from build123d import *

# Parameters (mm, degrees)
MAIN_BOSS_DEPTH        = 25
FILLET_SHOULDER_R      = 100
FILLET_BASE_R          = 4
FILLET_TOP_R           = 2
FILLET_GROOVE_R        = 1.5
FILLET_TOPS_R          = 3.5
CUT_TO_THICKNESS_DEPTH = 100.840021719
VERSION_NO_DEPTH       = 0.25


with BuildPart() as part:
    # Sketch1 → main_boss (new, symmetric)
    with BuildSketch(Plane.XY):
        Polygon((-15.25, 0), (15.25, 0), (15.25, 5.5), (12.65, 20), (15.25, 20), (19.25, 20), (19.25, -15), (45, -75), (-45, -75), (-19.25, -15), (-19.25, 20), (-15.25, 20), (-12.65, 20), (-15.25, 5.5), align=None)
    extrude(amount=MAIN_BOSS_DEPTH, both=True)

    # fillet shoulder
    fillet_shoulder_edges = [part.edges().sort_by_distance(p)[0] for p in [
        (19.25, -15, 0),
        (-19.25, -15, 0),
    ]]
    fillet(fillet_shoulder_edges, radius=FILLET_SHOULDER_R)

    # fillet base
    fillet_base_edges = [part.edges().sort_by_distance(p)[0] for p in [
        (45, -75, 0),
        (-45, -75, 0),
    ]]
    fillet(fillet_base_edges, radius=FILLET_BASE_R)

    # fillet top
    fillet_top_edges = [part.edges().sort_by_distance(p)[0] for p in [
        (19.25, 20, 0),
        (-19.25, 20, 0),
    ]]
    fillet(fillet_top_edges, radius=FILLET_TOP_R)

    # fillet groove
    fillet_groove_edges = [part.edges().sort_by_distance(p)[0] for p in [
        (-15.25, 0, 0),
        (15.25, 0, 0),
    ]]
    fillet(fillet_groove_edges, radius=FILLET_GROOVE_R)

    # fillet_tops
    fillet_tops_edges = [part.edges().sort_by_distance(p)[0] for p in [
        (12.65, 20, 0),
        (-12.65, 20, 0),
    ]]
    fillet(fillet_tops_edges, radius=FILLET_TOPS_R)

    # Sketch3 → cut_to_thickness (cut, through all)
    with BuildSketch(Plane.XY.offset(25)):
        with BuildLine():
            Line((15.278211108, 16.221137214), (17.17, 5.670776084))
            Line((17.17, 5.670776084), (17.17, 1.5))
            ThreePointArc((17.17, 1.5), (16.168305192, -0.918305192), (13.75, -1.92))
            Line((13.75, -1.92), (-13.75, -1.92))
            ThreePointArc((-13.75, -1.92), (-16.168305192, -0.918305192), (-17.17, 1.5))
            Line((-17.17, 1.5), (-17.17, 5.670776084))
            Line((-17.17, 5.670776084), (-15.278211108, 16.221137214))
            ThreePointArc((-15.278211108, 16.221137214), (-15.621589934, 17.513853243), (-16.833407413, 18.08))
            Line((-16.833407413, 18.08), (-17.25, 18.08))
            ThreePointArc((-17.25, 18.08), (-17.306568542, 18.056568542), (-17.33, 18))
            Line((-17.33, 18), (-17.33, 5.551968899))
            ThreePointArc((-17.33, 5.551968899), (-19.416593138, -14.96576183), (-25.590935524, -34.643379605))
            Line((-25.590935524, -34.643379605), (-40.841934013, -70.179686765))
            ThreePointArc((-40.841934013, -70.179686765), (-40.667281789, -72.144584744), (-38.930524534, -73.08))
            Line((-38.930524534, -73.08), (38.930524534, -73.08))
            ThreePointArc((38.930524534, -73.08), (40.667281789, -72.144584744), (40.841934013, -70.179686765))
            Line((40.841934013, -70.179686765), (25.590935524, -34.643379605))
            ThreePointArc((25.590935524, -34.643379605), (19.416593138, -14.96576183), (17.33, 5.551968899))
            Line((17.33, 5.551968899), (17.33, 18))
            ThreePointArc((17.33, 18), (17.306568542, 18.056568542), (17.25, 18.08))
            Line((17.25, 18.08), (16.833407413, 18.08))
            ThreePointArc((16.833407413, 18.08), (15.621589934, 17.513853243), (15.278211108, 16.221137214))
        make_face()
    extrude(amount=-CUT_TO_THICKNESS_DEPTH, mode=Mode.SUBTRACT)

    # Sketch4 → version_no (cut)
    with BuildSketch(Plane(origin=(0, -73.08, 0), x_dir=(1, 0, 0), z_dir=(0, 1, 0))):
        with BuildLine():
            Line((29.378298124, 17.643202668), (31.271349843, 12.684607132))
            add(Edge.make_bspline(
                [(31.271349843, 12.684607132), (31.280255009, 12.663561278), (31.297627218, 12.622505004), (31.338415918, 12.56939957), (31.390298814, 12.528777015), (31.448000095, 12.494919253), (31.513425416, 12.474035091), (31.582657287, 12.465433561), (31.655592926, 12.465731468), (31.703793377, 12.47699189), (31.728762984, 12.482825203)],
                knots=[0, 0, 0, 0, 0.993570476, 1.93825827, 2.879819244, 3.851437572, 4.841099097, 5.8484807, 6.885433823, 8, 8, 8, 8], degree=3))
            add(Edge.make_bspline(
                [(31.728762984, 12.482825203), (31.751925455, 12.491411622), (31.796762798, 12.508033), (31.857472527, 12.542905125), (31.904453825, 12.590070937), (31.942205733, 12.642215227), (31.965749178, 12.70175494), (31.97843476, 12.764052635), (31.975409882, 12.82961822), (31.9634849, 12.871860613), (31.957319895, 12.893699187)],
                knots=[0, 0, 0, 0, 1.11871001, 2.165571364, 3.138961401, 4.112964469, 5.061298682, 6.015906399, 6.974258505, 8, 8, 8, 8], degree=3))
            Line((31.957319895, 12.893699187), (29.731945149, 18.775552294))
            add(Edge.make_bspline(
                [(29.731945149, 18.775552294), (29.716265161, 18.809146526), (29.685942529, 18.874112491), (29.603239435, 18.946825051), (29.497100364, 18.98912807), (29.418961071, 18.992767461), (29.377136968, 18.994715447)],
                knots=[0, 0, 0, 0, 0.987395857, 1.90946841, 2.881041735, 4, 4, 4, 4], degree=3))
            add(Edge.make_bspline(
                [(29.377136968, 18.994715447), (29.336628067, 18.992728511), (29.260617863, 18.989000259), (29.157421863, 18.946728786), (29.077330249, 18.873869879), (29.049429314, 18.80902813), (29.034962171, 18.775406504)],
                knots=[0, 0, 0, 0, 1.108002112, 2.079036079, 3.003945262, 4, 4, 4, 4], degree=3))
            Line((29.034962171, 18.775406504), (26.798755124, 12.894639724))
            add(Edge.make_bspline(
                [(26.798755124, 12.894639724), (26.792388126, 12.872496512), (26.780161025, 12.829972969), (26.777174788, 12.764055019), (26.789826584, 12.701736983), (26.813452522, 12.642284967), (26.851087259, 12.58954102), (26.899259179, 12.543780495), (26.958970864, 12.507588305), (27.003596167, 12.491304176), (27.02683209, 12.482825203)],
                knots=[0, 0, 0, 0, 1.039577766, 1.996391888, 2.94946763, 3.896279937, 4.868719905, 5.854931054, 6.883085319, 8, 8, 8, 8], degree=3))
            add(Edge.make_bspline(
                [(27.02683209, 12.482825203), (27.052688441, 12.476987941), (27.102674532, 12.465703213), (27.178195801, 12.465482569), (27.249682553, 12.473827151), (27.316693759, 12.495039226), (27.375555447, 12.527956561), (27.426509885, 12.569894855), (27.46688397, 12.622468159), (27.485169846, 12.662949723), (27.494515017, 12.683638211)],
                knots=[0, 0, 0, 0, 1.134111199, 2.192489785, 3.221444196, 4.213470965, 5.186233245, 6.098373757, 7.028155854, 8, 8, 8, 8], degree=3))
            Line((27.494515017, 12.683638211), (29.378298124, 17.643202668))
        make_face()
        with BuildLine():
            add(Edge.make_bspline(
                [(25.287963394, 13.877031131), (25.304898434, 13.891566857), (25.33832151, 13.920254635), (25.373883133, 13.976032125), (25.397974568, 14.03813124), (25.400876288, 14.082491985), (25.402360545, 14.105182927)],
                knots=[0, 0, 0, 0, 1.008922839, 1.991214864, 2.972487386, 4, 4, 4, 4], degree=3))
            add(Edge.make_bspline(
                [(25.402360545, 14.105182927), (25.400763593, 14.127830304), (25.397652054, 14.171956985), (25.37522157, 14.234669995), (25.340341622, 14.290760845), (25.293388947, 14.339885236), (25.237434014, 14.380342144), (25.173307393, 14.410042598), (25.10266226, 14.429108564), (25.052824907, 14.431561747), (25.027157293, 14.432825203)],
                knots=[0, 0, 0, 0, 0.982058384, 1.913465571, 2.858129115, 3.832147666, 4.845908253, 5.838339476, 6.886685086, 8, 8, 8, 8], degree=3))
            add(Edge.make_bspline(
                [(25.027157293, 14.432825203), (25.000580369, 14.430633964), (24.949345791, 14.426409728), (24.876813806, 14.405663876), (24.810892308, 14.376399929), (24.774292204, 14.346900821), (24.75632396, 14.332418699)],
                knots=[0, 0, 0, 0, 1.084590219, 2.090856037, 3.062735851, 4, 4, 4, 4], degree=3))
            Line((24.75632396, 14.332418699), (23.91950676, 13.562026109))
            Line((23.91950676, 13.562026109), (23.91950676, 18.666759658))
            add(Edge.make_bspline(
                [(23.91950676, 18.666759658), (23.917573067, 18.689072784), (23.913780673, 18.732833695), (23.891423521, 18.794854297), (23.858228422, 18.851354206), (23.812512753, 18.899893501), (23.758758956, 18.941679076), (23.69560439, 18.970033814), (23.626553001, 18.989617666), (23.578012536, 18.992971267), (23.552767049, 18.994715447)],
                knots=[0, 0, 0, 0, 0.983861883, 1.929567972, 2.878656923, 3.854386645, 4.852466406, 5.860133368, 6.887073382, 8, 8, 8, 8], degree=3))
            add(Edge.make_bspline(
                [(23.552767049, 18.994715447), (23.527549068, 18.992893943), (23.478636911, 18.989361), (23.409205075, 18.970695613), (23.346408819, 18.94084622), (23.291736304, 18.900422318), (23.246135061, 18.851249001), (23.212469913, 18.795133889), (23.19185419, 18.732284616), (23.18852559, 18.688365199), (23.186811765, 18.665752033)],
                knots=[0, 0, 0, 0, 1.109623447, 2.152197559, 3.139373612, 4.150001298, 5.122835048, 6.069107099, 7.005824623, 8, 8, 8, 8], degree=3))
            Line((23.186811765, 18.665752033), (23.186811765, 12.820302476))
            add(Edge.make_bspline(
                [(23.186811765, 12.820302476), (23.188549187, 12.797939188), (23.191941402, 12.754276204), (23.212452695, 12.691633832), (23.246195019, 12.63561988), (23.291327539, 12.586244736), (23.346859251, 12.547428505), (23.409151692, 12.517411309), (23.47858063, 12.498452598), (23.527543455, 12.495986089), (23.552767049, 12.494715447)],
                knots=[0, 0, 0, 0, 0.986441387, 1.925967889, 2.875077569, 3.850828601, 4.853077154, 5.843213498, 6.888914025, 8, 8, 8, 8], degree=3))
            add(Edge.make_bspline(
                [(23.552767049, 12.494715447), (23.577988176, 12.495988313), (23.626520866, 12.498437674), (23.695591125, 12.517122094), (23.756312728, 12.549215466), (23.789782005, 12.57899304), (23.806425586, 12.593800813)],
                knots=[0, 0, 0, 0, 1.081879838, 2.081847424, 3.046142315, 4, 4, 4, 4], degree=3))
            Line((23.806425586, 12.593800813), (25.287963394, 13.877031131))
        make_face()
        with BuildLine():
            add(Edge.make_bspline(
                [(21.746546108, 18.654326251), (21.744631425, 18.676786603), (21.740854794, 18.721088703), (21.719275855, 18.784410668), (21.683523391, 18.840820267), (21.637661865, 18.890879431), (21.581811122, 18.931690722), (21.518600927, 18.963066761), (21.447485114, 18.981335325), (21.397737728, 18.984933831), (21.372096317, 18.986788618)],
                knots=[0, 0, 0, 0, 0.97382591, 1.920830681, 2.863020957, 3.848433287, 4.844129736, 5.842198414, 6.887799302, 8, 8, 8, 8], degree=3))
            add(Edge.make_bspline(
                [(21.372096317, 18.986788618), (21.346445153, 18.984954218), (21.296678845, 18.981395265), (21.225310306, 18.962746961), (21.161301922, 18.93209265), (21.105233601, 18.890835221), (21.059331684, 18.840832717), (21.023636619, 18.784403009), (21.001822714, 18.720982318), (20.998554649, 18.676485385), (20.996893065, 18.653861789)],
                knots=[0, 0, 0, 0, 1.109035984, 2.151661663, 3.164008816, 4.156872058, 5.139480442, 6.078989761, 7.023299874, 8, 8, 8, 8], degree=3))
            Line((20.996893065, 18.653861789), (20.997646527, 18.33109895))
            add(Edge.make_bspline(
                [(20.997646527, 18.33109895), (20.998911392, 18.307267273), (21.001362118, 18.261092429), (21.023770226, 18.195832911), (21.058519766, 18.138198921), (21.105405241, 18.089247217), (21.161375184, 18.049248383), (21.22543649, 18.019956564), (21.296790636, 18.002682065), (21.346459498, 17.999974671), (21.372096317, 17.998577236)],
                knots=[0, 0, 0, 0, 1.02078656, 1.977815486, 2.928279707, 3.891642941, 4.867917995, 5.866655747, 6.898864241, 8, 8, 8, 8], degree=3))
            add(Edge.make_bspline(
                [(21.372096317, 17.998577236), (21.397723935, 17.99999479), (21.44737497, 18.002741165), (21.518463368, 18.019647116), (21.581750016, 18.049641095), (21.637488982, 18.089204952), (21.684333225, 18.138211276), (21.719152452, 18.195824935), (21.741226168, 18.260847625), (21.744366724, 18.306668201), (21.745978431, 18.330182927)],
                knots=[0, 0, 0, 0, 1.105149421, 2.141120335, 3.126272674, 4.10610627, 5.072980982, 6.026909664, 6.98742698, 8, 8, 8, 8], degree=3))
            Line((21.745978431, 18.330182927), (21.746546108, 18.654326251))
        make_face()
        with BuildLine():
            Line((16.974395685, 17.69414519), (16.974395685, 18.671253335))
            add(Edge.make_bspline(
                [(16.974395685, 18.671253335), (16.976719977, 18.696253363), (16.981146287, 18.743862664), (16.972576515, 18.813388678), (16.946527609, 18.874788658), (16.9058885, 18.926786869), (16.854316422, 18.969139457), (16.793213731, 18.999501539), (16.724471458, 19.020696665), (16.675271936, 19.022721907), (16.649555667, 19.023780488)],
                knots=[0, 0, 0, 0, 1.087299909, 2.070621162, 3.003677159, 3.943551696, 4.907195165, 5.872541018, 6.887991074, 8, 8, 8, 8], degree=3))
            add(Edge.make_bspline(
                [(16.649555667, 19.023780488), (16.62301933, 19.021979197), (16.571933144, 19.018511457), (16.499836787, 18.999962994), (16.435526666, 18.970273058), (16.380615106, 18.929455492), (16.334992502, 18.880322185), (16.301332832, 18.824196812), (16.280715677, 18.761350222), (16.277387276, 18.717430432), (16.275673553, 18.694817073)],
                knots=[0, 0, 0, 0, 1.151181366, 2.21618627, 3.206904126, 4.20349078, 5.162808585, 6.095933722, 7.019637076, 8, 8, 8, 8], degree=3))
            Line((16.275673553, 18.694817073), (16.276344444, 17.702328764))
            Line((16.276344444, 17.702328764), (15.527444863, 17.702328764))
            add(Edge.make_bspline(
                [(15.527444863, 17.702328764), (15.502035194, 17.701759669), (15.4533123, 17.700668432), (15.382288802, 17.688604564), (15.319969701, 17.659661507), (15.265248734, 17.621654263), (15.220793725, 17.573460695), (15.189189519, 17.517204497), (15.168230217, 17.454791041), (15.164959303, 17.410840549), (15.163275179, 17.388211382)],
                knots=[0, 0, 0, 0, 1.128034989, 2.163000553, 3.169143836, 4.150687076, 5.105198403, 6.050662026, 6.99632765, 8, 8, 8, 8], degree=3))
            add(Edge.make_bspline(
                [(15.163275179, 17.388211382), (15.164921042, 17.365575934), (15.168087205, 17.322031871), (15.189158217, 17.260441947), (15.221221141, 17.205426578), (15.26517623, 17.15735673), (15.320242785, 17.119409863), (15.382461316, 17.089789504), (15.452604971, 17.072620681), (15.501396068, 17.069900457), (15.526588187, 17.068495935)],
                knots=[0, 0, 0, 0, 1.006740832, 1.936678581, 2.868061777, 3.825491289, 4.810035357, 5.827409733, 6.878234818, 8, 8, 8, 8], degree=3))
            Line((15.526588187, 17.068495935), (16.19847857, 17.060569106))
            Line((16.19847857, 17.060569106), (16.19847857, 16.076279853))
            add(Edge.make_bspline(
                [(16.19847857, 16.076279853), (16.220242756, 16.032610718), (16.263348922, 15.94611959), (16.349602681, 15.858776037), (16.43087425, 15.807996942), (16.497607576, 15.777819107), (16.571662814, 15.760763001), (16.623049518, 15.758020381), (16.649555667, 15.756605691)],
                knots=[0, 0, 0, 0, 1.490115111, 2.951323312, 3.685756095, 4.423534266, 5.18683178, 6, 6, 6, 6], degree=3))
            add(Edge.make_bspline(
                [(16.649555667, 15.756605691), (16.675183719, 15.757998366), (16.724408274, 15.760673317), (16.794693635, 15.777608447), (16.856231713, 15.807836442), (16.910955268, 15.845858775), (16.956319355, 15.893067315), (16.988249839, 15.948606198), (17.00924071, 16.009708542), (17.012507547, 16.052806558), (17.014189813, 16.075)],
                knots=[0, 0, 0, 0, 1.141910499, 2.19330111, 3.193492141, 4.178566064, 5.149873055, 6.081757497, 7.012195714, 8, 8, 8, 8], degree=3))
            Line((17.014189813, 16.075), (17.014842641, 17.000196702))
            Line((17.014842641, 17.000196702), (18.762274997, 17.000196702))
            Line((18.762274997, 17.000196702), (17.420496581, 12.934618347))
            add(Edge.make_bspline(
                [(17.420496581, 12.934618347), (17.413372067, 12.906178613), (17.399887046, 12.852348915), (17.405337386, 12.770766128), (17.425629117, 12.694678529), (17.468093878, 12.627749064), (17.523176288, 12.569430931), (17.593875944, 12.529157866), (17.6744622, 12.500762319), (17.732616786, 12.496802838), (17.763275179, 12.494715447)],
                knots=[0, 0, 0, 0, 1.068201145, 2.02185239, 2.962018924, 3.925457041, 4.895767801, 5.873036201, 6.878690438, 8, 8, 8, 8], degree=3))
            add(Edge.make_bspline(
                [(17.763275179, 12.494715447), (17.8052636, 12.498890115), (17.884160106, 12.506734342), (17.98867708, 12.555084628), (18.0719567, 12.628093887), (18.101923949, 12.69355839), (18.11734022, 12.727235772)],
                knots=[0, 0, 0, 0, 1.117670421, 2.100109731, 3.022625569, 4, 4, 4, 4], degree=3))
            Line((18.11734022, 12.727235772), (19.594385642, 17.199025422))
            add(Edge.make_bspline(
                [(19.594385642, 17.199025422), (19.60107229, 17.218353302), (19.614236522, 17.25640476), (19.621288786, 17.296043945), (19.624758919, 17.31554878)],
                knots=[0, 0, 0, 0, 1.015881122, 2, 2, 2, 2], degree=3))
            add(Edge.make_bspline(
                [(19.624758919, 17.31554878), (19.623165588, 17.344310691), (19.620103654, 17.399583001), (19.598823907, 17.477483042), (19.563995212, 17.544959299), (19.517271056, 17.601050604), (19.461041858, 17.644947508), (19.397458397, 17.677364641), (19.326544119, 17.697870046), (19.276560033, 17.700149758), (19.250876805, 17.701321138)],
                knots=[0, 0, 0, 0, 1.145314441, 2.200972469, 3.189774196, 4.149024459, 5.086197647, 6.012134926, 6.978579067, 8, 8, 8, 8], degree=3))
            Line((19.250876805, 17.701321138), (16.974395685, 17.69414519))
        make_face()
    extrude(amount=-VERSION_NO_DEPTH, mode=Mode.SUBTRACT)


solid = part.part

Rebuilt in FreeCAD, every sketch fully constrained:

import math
import FreeCAD as App
import Part
import Sketcher

V = App.Vector


def edges_at(feature, points):
    """Names of the edges that pass closest to the given points."""
    edges = feature.Shape.Edges
    near = lambda p: min(range(len(edges)), key=lambda i: edges[i].distToShape(Part.Vertex(*p))[0])
    return sorted({f"Edge{near(p) + 1}" for p in points})


def add_polygon(sketch, points):
    """Adds a closed chain of lines whose ends are joined by coincident constraints."""
    first, n = sketch.GeometryCount, len(points)
    for a, b in zip(points, points[1:] + points[:1]):
        sketch.addGeometry(Part.LineSegment(App.Vector(*a, 0), App.Vector(*b, 0)), False)
    for i in range(n):
        sketch.addConstraint(Sketcher.Constraint("Coincident", first + i, 2, first + (i + 1) % n, 1))

doc = App.newDocument("Part")
body = doc.addObject("PartDesign::Body", "Body")

# Sketch on XY plane
sketch1 = doc.addObject("Sketcher::SketchObject", "Sketch")
body.addObject(sketch1)
sketch1.AttachmentSupport = (doc.XY_Plane, [""])
sketch1.MapMode = "FlatFace"
add_polygon(sketch1, [(15, 0), (-15, 0), (-15, 6), (-13, 20), (-19, 20), (-19, -15), (-45, -75), (45, -75), (19, -15), (19, 20), (13, 20), (15, 6)])  # lines 0-11
sketch1.addConstraint(Sketcher.Constraint("Horizontal", 0))
sketch1.addConstraint(Sketcher.Constraint("Vertical", 1))
sketch1.addConstraint(Sketcher.Constraint("Horizontal", 3))
sketch1.addConstraint(Sketcher.Constraint("Vertical", 4))
sketch1.addConstraint(Sketcher.Constraint("Horizontal", 6))
sketch1.addConstraint(Sketcher.Constraint("Vertical", 8))
sketch1.addConstraint(Sketcher.Constraint("Horizontal", 9))
sketch1.addConstraint(Sketcher.Constraint("Vertical", 11))
sketch1.addConstraint(Sketcher.Constraint("Symmetric", 0, 2, 11, 2, -1, 1))
sketch1.addConstraint(Sketcher.Constraint("Symmetric", 4, 2, 7, 2, -2))
sketch1.addConstraint(Sketcher.Constraint("Symmetric", 2, 2, 9, 2, -2))
sketch1.addConstraint(Sketcher.Constraint("Horizontal", 1, 2, 10, 2))
sketch1.addConstraint(Sketcher.Constraint("Equal", 5, 7))
sketch1.addConstraint(Sketcher.Constraint("DistanceX", 6, 1, 6, 2, 90.0))
sketch1.addConstraint(Sketcher.Constraint("DistanceY", 4, 2, 4, 1, 35.0))
sketch1.addConstraint(Sketcher.Constraint("DistanceX", 0, 2, 0, 1, 30.5))
sketch1.addConstraint(Sketcher.Constraint("DistanceX", 3, 2, 3, 1, 6.6))
sketch1.addConstraint(Sketcher.Constraint("DistanceY", 1, 1, 1, 2, 5.5))
sketch1.addConstraint(Sketcher.Constraint("DistanceY", -1, 1, 2, 2, 20.0))
sketch1.addConstraint(Sketcher.Constraint("DistanceY", 5, 2, -1, 1, 75.0))
sketch1.addConstraint(Sketcher.Constraint("DistanceX", 3, 2, 1, 2, 4.0))
pad1 = doc.addObject("PartDesign::Pad", "Pad")
body.addObject(pad1)
pad1.Profile = sketch1
pad1.Length = 50
pad1.Midplane = True
doc.recompute()

fillet = doc.addObject("PartDesign::Fillet", "Fillet")
body.addObject(fillet)
fillet.Base = (pad1, edges_at(pad1, [(19.25, -15, 0), (-19.25, -15, 0)]))
fillet.Radius = 100
doc.recompute()

fillet2 = doc.addObject("PartDesign::Fillet", "Fillet001")
body.addObject(fillet2)
fillet2.Base = (fillet, edges_at(fillet, [(45, -75, 0), (-45, -75, 0)]))
fillet2.Radius = 4
doc.recompute()

fillet3 = doc.addObject("PartDesign::Fillet", "Fillet002")
body.addObject(fillet3)
fillet3.Base = (fillet2, edges_at(fillet2, [(19.25, 20, 0), (-19.25, 20, 0)]))
fillet3.Radius = 2
doc.recompute()

fillet4 = doc.addObject("PartDesign::Fillet", "Fillet003")
body.addObject(fillet4)
fillet4.Base = (fillet3, edges_at(fillet3, [(-15.25, 0, 0), (15.25, 0, 0)]))
fillet4.Radius = 1.5
doc.recompute()

fillet5 = doc.addObject("PartDesign::Fillet", "Fillet004")
body.addObject(fillet5)
fillet5.Base = (fillet4, edges_at(fillet4, [(12.65, 20, 0), (-12.65, 20, 0)]))
fillet5.Radius = 3.5

# Sketch on XY plane
sketch2 = doc.addObject("Sketcher::SketchObject", "Sketch001")
body.addObject(sketch2)
sketch2.AttachmentSupport = (doc.XY_Plane, [""])
sketch2.MapMode = "FlatFace"
sketch2.AttachmentOffset = App.Placement(V(0, 0, 25), App.Rotation())
sketch2.addGeometry(Part.LineSegment(V(15.28, 16.22, 0), V(17.17, 5.67, 0)), False)
sketch2.addGeometry(Part.LineSegment(V(17.17, 5.67, 0), V(17.17, 1.5, 0)), False)
sketch2.addGeometry(Part.ArcOfCircle(Part.Circle(V(13.75, 1.5, 0), V(0, 0, 1), 3.42), math.radians(-90), math.radians(0)), False)
sketch2.addGeometry(Part.LineSegment(V(13.75, -1.92, 0), V(-13.75, -1.92, 0)), False)
sketch2.addGeometry(Part.ArcOfCircle(Part.Circle(V(-13.75, 1.5, 0), V(0, 0, 1), 3.42), math.radians(180), math.radians(270)), False)
sketch2.addGeometry(Part.LineSegment(V(-17.17, 1.5, 0), V(-17.17, 5.67, 0)), False)
sketch2.addGeometry(Part.LineSegment(V(-17.17, 5.67, 0), V(-15.28, 16.22, 0)), False)
sketch2.addGeometry(Part.ArcOfCircle(Part.Circle(V(-16.83, 16.5, 0), V(0, 0, 1), 1.58), math.radians(-10), math.radians(90)), False)
sketch2.addGeometry(Part.LineSegment(V(-16.83, 18.08, 0), V(-17.25, 18.08, 0)), False)
sketch2.addGeometry(Part.ArcOfCircle(Part.Circle(V(-17.25, 18, 0), V(0, 0, 1), 0.08), math.radians(90), math.radians(180)), False)
sketch2.addGeometry(Part.LineSegment(V(-17.33, 18, 0), V(-17.33, 5.55, 0)), False)
sketch2.addGeometry(Part.ArcOfCircle(Part.Circle(V(-119.25, 5.55, 0), V(0, 0, 1), 101.92), math.radians(-23), math.radians(0)), False)
sketch2.addGeometry(Part.LineSegment(V(-25.59, -34.64, 0), V(-40.84, -70.18, 0)), False)
sketch2.addGeometry(Part.ArcOfCircle(Part.Circle(V(-38.93, -71, 0), V(0, 0, 1), 2.08), math.radians(157), math.radians(270)), False)
sketch2.addGeometry(Part.LineSegment(V(-38.93, -73.08, 0), V(38.93, -73.08, 0)), False)
sketch2.addGeometry(Part.ArcOfCircle(Part.Circle(V(38.93, -71, 0), V(0, 0, 1), 2.08), math.radians(-90), math.radians(23)), False)
sketch2.addGeometry(Part.LineSegment(V(40.84, -70.18, 0), V(25.59, -34.64, 0)), False)
sketch2.addGeometry(Part.ArcOfCircle(Part.Circle(V(119.25, 5.55, 0), V(0, 0, 1), 101.92), math.radians(-180), math.radians(-157)), False)
sketch2.addGeometry(Part.LineSegment(V(17.33, 5.55, 0), V(17.33, 18, 0)), False)
sketch2.addGeometry(Part.ArcOfCircle(Part.Circle(V(17.25, 18, 0), V(0, 0, 1), 0.08), math.radians(0), math.radians(90)), False)
sketch2.addGeometry(Part.LineSegment(V(17.25, 18.08, 0), V(16.83, 18.08, 0)), False)
sketch2.addGeometry(Part.ArcOfCircle(Part.Circle(V(16.83, 16.5, 0), V(0, 0, 1), 1.58), math.radians(90), math.radians(190)), False)
sketch2.addConstraint(Sketcher.Constraint("Coincident", 0, 2, 1, 1))
sketch2.addConstraint(Sketcher.Constraint("Tangent", 1, 2, 2, 2))
sketch2.addConstraint(Sketcher.Constraint("Tangent", 2, 1, 3, 1))
sketch2.addConstraint(Sketcher.Constraint("Tangent", 3, 2, 4, 2))
sketch2.addConstraint(Sketcher.Constraint("Tangent", 4, 1, 5, 1))
sketch2.addConstraint(Sketcher.Constraint("Coincident", 5, 2, 6, 1))
sketch2.addConstraint(Sketcher.Constraint("Tangent", 6, 2, 7, 1))
sketch2.addConstraint(Sketcher.Constraint("Tangent", 7, 2, 8, 1))
sketch2.addConstraint(Sketcher.Constraint("Tangent", 8, 2, 9, 1))
sketch2.addConstraint(Sketcher.Constraint("Tangent", 9, 2, 10, 1))
sketch2.addConstraint(Sketcher.Constraint("Tangent", 10, 2, 11, 2))
sketch2.addConstraint(Sketcher.Constraint("Tangent", 11, 1, 12, 1))
sketch2.addConstraint(Sketcher.Constraint("Tangent", 12, 2, 13, 1))
sketch2.addConstraint(Sketcher.Constraint("Tangent", 13, 2, 14, 1))
sketch2.addConstraint(Sketcher.Constraint("Tangent", 14, 2, 15, 1))
sketch2.addConstraint(Sketcher.Constraint("Tangent", 15, 2, 16, 1))
sketch2.addConstraint(Sketcher.Constraint("Tangent", 16, 2, 17, 2))
sketch2.addConstraint(Sketcher.Constraint("Tangent", 17, 1, 18, 1))
sketch2.addConstraint(Sketcher.Constraint("Tangent", 18, 2, 19, 1))
sketch2.addConstraint(Sketcher.Constraint("Tangent", 19, 2, 20, 1))
sketch2.addConstraint(Sketcher.Constraint("Tangent", 20, 2, 21, 1))
sketch2.addConstraint(Sketcher.Constraint("Tangent", 21, 2, 0, 1))
sketch2.addConstraint(Sketcher.Constraint("Vertical", 1))
sketch2.addConstraint(Sketcher.Constraint("Horizontal", 3))
sketch2.addConstraint(Sketcher.Constraint("Vertical", 5))
sketch2.addConstraint(Sketcher.Constraint("Horizontal", 8))
sketch2.addConstraint(Sketcher.Constraint("Vertical", 10))
sketch2.addConstraint(Sketcher.Constraint("Horizontal", 14))
sketch2.addConstraint(Sketcher.Constraint("Vertical", 18))
sketch2.addConstraint(Sketcher.Constraint("Horizontal", 20))
sketch2.addConstraint(Sketcher.Constraint("Equal", 2, 4))
sketch2.addConstraint(Sketcher.Constraint("Equal", 13, 15))
sketch2.addConstraint(Sketcher.Constraint("Equal", 11, 17))
sketch2.addConstraint(Sketcher.Constraint("Equal", 9, 19))
sketch2.addConstraint(Sketcher.Constraint("Equal", 7, 21))
sketch2.addConstraint(Sketcher.Constraint("Symmetric", 11, 3, 17, 3, -2))
sketch2.addConstraint(Sketcher.Constraint("Symmetric", 7, 3, 21, 3, -2))
sketch2.addConstraint(Sketcher.Constraint("Symmetric", 0, 2, 5, 2, -2))
sketch2.addConstraint(Sketcher.Constraint("Horizontal", 12, 2, 15, 2))
sketch2.addConstraint(Sketcher.Constraint("Radius", 2, 3.42))
sketch2.addConstraint(Sketcher.Constraint("Radius", 7, 1.58))
sketch2.addConstraint(Sketcher.Constraint("Radius", 9, 0.08))
sketch2.addConstraint(Sketcher.Constraint("Radius", 11, 101.92))
sketch2.addConstraint(Sketcher.Constraint("Radius", 13, 2.08))
sketch2.addConstraint(Sketcher.Constraint("DistanceX", 3, 2, 3, 1, 27.5))
sketch2.addConstraint(Sketcher.Constraint("DistanceY", -1, 1, 9, 3, 18.0))
sketch2.addConstraint(Sketcher.Constraint("DistanceY", 13, 3, -1, 1, 71.0))
sketch2.addConstraint(Sketcher.Constraint("DistanceY", 4, 3, 7, 3, 15.0))
sketch2.addConstraint(Sketcher.Constraint("DistanceX", 9, 3, 2, 3, 31.0))
sketch2.addConstraint(Sketcher.Constraint("DistanceX", 12, 2, 11, 1, 15.250998))
sketch2.addConstraint(Sketcher.Constraint("DistanceX", 14, 1, 14, 2, 77.861049))
sketch2.addConstraint(Sketcher.Constraint("DistanceX", 8, 2, 8, 1, 0.416593))
sketch2.addConstraint(Sketcher.Constraint("DistanceY", 1, 2, 1, 1, 4.170776))
pocket1 = doc.addObject("PartDesign::Pocket", "Pocket")
body.addObject(pocket1)
pocket1.Profile = sketch2
pocket1.Type = "ThroughAll"

# Sketch on XZ plane
sketch3 = doc.addObject("Sketcher::SketchObject", "Sketch002")
body.addObject(sketch3)
sketch3.AttachmentSupport = (doc.XZ_Plane, [""])
sketch3.MapMode = "FlatFace"
sketch3.AttachmentOffset = App.Placement(V(0, 0, 73.08), App.Rotation())
sketch3.addGeometry(Part.LineSegment(V(29.378298, -17.643203, 0), V(31.27135, -12.684607, 0)), False)
sketch3.addGeometry(Part.BSplineCurve([V(31.27135, -12.684607, 0), V(31.280255, -12.663561, 0), V(31.297627, -12.622505, 0), V(31.338416, -12.5694, 0), V(31.390299, -12.528777, 0), V(31.448, -12.494919, 0), V(31.513425, -12.474035, 0), V(31.582657, -12.465434, 0), V(31.655593, -12.465731, 0), V(31.703793, -12.476992, 0), V(31.728763, -12.482825, 0)], [4, 1, 1, 1, 1, 1, 1, 1, 4], [0, 0.993570476, 1.93825827, 2.879819244, 3.851437572, 4.841099097, 5.8484807, 6.885433823, 8], False, 3, [1, 1, 1, 1, 1, 1, 1, 1, 1, 1, 1], False), False)
sketch3.addGeometry(Part.BSplineCurve([V(31.728763, -12.482825, 0), V(31.751925, -12.491412, 0), V(31.796763, -12.508033, 0), V(31.857473, -12.542905, 0), V(31.904454, -12.590071, 0), V(31.942206, -12.642215, 0), V(31.965749, -12.701755, 0), V(31.978435, -12.764053, 0), V(31.97541, -12.829618, 0), V(31.963485, -12.871861, 0), V(31.95732, -12.893699, 0)], [4, 1, 1, 1, 1, 1, 1, 1, 4], [0, 1.11871001, 2.165571364, 3.138961401, 4.112964469, 5.061298682, 6.015906399, 6.974258505, 8], False, 3, [1, 1, 1, 1, 1, 1, 1, 1, 1, 1, 1], False), False)
sketch3.addGeometry(Part.LineSegment(V(31.95732, -12.893699, 0), V(29.731945, -18.775552, 0)), False)
sketch3.addGeometry(Part.BSplineCurve([V(29.731945, -18.775552, 0), V(29.716265, -18.809147, 0), V(29.685943, -18.874112, 0), V(29.603239, -18.946825, 0), V(29.4971, -18.989128, 0), V(29.418961, -18.992767, 0), V(29.377137, -18.994715, 0)], [4, 1, 1, 1, 4], [0, 0.987395857, 1.90946841, 2.881041735, 4], False, 3, [1, 1, 1, 1, 1, 1, 1], False), False)
sketch3.addGeometry(Part.BSplineCurve([V(29.377137, -18.994715, 0), V(29.336628, -18.992729, 0), V(29.260618, -18.989, 0), V(29.157422, -18.946729, 0), V(29.07733, -18.87387, 0), V(29.049429, -18.809028, 0), V(29.034962, -18.775407, 0)], [4, 1, 1, 1, 4], [0, 1.108002112, 2.079036079, 3.003945262, 4], False, 3, [1, 1, 1, 1, 1, 1, 1], False), False)
sketch3.addGeometry(Part.LineSegment(V(29.034962, -18.775407, 0), V(26.798755, -12.89464, 0)), False)
sketch3.addGeometry(Part.BSplineCurve([V(26.798755, -12.89464, 0), V(26.792388, -12.872497, 0), V(26.780161, -12.829973, 0), V(26.777175, -12.764055, 0), V(26.789827, -12.701737, 0), V(26.813453, -12.642285, 0), V(26.851087, -12.589541, 0), V(26.899259, -12.54378, 0), V(26.958971, -12.507588, 0), V(27.003596, -12.491304, 0), V(27.026832, -12.482825, 0)], [4, 1, 1, 1, 1, 1, 1, 1, 4], [0, 1.039577766, 1.996391888, 2.94946763, 3.896279937, 4.868719905, 5.854931054, 6.883085319, 8], False, 3, [1, 1, 1, 1, 1, 1, 1, 1, 1, 1, 1], False), False)
sketch3.addGeometry(Part.BSplineCurve([V(27.026832, -12.482825, 0), V(27.052688, -12.476988, 0), V(27.102675, -12.465703, 0), V(27.178196, -12.465483, 0), V(27.249683, -12.473827, 0), V(27.316694, -12.495039, 0), V(27.375555, -12.527957, 0), V(27.42651, -12.569895, 0), V(27.466884, -12.622468, 0), V(27.48517, -12.66295, 0), V(27.494515, -12.683638, 0)], [4, 1, 1, 1, 1, 1, 1, 1, 4], [0, 1.134111199, 2.192489785, 3.221444196, 4.213470965, 5.186233245, 6.098373757, 7.028155854, 8], False, 3, [1, 1, 1, 1, 1, 1, 1, 1, 1, 1, 1], False), False)
sketch3.addGeometry(Part.LineSegment(V(27.494515, -12.683638, 0), V(29.378298, -17.643203, 0)), False)
sketch3.addGeometry(Part.BSplineCurve([V(25.287963, -13.877031, 0), V(25.304898, -13.891567, 0), V(25.338322, -13.920255, 0), V(25.373883, -13.976032, 0), V(25.397975, -14.038131, 0), V(25.400876, -14.082492, 0), V(25.402361, -14.105183, 0)], [4, 1, 1, 1, 4], [0, 1.008922839, 1.991214864, 2.972487386, 4], False, 3, [1, 1, 1, 1, 1, 1, 1], False), False)
sketch3.addGeometry(Part.BSplineCurve([V(25.402361, -14.105183, 0), V(25.400764, -14.12783, 0), V(25.397652, -14.171957, 0), V(25.375222, -14.23467, 0), V(25.340342, -14.290761, 0), V(25.293389, -14.339885, 0), V(25.237434, -14.380342, 0), V(25.173307, -14.410043, 0), V(25.102662, -14.429109, 0), V(25.052825, -14.431562, 0), V(25.027157, -14.432825, 0)], [4, 1, 1, 1, 1, 1, 1, 1, 4], [0, 0.982058384, 1.913465571, 2.858129115, 3.832147666, 4.845908253, 5.838339476, 6.886685086, 8], False, 3, [1, 1, 1, 1, 1, 1, 1, 1, 1, 1, 1], False), False)
sketch3.addGeometry(Part.BSplineCurve([V(25.027157, -14.432825, 0), V(25.00058, -14.430634, 0), V(24.949346, -14.42641, 0), V(24.876814, -14.405664, 0), V(24.810892, -14.3764, 0), V(24.774292, -14.346901, 0), V(24.756324, -14.332419, 0)], [4, 1, 1, 1, 4], [0, 1.084590219, 2.090856037, 3.062735851, 4], False, 3, [1, 1, 1, 1, 1, 1, 1], False), False)
sketch3.addGeometry(Part.LineSegment(V(24.756324, -14.332419, 0), V(23.919507, -13.562026, 0)), False)
sketch3.addGeometry(Part.LineSegment(V(23.919507, -13.562026, 0), V(23.919507, -18.66676, 0)), False)
sketch3.addGeometry(Part.BSplineCurve([V(23.919507, -18.66676, 0), V(23.917573, -18.689073, 0), V(23.913781, -18.732834, 0), V(23.891424, -18.794854, 0), V(23.858228, -18.851354, 0), V(23.812513, -18.899894, 0), V(23.758759, -18.941679, 0), V(23.695604, -18.970034, 0), V(23.626553, -18.989618, 0), V(23.578013, -18.992971, 0), V(23.552767, -18.994715, 0)], [4, 1, 1, 1, 1, 1, 1, 1, 4], [0, 0.983861883, 1.929567972, 2.878656923, 3.854386645, 4.852466406, 5.860133368, 6.887073382, 8], False, 3, [1, 1, 1, 1, 1, 1, 1, 1, 1, 1, 1], False), False)
sketch3.addGeometry(Part.BSplineCurve([V(23.552767, -18.994715, 0), V(23.527549, -18.992894, 0), V(23.478637, -18.989361, 0), V(23.409205, -18.970696, 0), V(23.346409, -18.940846, 0), V(23.291736, -18.900422, 0), V(23.246135, -18.851249, 0), V(23.21247, -18.795134, 0), V(23.191854, -18.732285, 0), V(23.188526, -18.688365, 0), V(23.186812, -18.665752, 0)], [4, 1, 1, 1, 1, 1, 1, 1, 4], [0, 1.109623447, 2.152197559, 3.139373612, 4.150001298, 5.122835048, 6.069107099, 7.005824623, 8], False, 3, [1, 1, 1, 1, 1, 1, 1, 1, 1, 1, 1], False), False)
sketch3.addGeometry(Part.LineSegment(V(23.186812, -18.665752, 0), V(23.186812, -12.820302, 0)), False)
sketch3.addGeometry(Part.BSplineCurve([V(23.186812, -12.820302, 0), V(23.188549, -12.797939, 0), V(23.191941, -12.754276, 0), V(23.212453, -12.691634, 0), V(23.246195, -12.63562, 0), V(23.291328, -12.586245, 0), V(23.346859, -12.547429, 0), V(23.409152, -12.517411, 0), V(23.478581, -12.498453, 0), V(23.527543, -12.495986, 0), V(23.552767, -12.494715, 0)], [4, 1, 1, 1, 1, 1, 1, 1, 4], [0, 0.986441387, 1.925967889, 2.875077569, 3.850828601, 4.853077154, 5.843213498, 6.888914025, 8], False, 3, [1, 1, 1, 1, 1, 1, 1, 1, 1, 1, 1], False), False)
sketch3.addGeometry(Part.BSplineCurve([V(23.552767, -12.494715, 0), V(23.577988, -12.495988, 0), V(23.626521, -12.498438, 0), V(23.695591, -12.517122, 0), V(23.756313, -12.549215, 0), V(23.789782, -12.578993, 0), V(23.806426, -12.593801, 0)], [4, 1, 1, 1, 4], [0, 1.081879838, 2.081847424, 3.046142315, 4], False, 3, [1, 1, 1, 1, 1, 1, 1], False), False)
sketch3.addGeometry(Part.LineSegment(V(23.806426, -12.593801, 0), V(25.287963, -13.877031, 0)), False)
sketch3.addGeometry(Part.BSplineCurve([V(21.746546, -18.654326, 0), V(21.744631, -18.676787, 0), V(21.740855, -18.721089, 0), V(21.719276, -18.784411, 0), V(21.683523, -18.84082, 0), V(21.637662, -18.890879, 0), V(21.581811, -18.931691, 0), V(21.518601, -18.963067, 0), V(21.447485, -18.981335, 0), V(21.397738, -18.984934, 0), V(21.372096, -18.986789, 0)], [4, 1, 1, 1, 1, 1, 1, 1, 4], [0, 0.97382591, 1.920830681, 2.863020957, 3.848433287, 4.844129736, 5.842198414, 6.887799302, 8], False, 3, [1, 1, 1, 1, 1, 1, 1, 1, 1, 1, 1], False), False)
sketch3.addGeometry(Part.BSplineCurve([V(21.372096, -18.986789, 0), V(21.346445, -18.984954, 0), V(21.296679, -18.981395, 0), V(21.22531, -18.962747, 0), V(21.161302, -18.932093, 0), V(21.105234, -18.890835, 0), V(21.059332, -18.840833, 0), V(21.023637, -18.784403, 0), V(21.001823, -18.720982, 0), V(20.998555, -18.676485, 0), V(20.996893, -18.653862, 0)], [4, 1, 1, 1, 1, 1, 1, 1, 4], [0, 1.109035984, 2.151661663, 3.164008816, 4.156872058, 5.139480442, 6.078989761, 7.023299874, 8], False, 3, [1, 1, 1, 1, 1, 1, 1, 1, 1, 1, 1], False), False)
sketch3.addGeometry(Part.LineSegment(V(20.996893, -18.653862, 0), V(20.997647, -18.331099, 0)), False)
sketch3.addGeometry(Part.BSplineCurve([V(20.997647, -18.331099, 0), V(20.998911, -18.307267, 0), V(21.001362, -18.261092, 0), V(21.02377, -18.195833, 0), V(21.05852, -18.138199, 0), V(21.105405, -18.089247, 0), V(21.161375, -18.049248, 0), V(21.225436, -18.019957, 0), V(21.296791, -18.002682, 0), V(21.346459, -17.999975, 0), V(21.372096, -17.998577, 0)], [4, 1, 1, 1, 1, 1, 1, 1, 4], [0, 1.02078656, 1.977815486, 2.928279707, 3.891642941, 4.867917995, 5.866655747, 6.898864241, 8], False, 3, [1, 1, 1, 1, 1, 1, 1, 1, 1, 1, 1], False), False)
sketch3.addGeometry(Part.BSplineCurve([V(21.372096, -17.998577, 0), V(21.397724, -17.999995, 0), V(21.447375, -18.002741, 0), V(21.518463, -18.019647, 0), V(21.58175, -18.049641, 0), V(21.637489, -18.089205, 0), V(21.684333, -18.138211, 0), V(21.719152, -18.195825, 0), V(21.741226, -18.260848, 0), V(21.744367, -18.306668, 0), V(21.745978, -18.330183, 0)], [4, 1, 1, 1, 1, 1, 1, 1, 4], [0, 1.105149421, 2.141120335, 3.126272674, 4.10610627, 5.072980982, 6.026909664, 6.98742698, 8], False, 3, [1, 1, 1, 1, 1, 1, 1, 1, 1, 1, 1], False), False)
sketch3.addGeometry(Part.LineSegment(V(21.745978, -18.330183, 0), V(21.746546, -18.654326, 0)), False)
sketch3.addGeometry(Part.LineSegment(V(16.974396, -17.694145, 0), V(16.974396, -18.671253, 0)), False)
sketch3.addGeometry(Part.BSplineCurve([V(16.974396, -18.671253, 0), V(16.97672, -18.696253, 0), V(16.981146, -18.743863, 0), V(16.972577, -18.813389, 0), V(16.946528, -18.874789, 0), V(16.905888, -18.926787, 0), V(16.854316, -18.969139, 0), V(16.793214, -18.999502, 0), V(16.724471, -19.020697, 0), V(16.675272, -19.022722, 0), V(16.649556, -19.02378, 0)], [4, 1, 1, 1, 1, 1, 1, 1, 4], [0, 1.087299909, 2.070621162, 3.003677159, 3.943551696, 4.907195165, 5.872541018, 6.887991074, 8], False, 3, [1, 1, 1, 1, 1, 1, 1, 1, 1, 1, 1], False), False)
sketch3.addGeometry(Part.BSplineCurve([V(16.649556, -19.02378, 0), V(16.623019, -19.021979, 0), V(16.571933, -19.018511, 0), V(16.499837, -18.999963, 0), V(16.435527, -18.970273, 0), V(16.380615, -18.929455, 0), V(16.334993, -18.880322, 0), V(16.301333, -18.824197, 0), V(16.280716, -18.76135, 0), V(16.277387, -18.71743, 0), V(16.275674, -18.694817, 0)], [4, 1, 1, 1, 1, 1, 1, 1, 4], [0, 1.151181366, 2.21618627, 3.206904126, 4.20349078, 5.162808585, 6.095933722, 7.019637076, 8], False, 3, [1, 1, 1, 1, 1, 1, 1, 1, 1, 1, 1], False), False)
sketch3.addGeometry(Part.LineSegment(V(16.275674, -18.694817, 0), V(16.276344, -17.702329, 0)), False)
sketch3.addGeometry(Part.LineSegment(V(16.276344, -17.702329, 0), V(15.527445, -17.702329, 0)), False)
sketch3.addGeometry(Part.BSplineCurve([V(15.527445, -17.702329, 0), V(15.502035, -17.70176, 0), V(15.453312, -17.700668, 0), V(15.382289, -17.688605, 0), V(15.31997, -17.659662, 0), V(15.265249, -17.621654, 0), V(15.220794, -17.573461, 0), V(15.18919, -17.517204, 0), V(15.16823, -17.454791, 0), V(15.164959, -17.410841, 0), V(15.163275, -17.388211, 0)], [4, 1, 1, 1, 1, 1, 1, 1, 4], [0, 1.128034989, 2.163000553, 3.169143836, 4.150687076, 5.105198403, 6.050662026, 6.99632765, 8], False, 3, [1, 1, 1, 1, 1, 1, 1, 1, 1, 1, 1], False), False)
sketch3.addGeometry(Part.BSplineCurve([V(15.163275, -17.388211, 0), V(15.164921, -17.365576, 0), V(15.168087, -17.322032, 0), V(15.189158, -17.260442, 0), V(15.221221, -17.205427, 0), V(15.265176, -17.157357, 0), V(15.320243, -17.11941, 0), V(15.382461, -17.08979, 0), V(15.452605, -17.072621, 0), V(15.501396, -17.0699, 0), V(15.526588, -17.068496, 0)], [4, 1, 1, 1, 1, 1, 1, 1, 4], [0, 1.006740832, 1.936678581, 2.868061777, 3.825491289, 4.810035357, 5.827409733, 6.878234818, 8], False, 3, [1, 1, 1, 1, 1, 1, 1, 1, 1, 1, 1], False), False)
sketch3.addGeometry(Part.LineSegment(V(15.526588, -17.068496, 0), V(16.198479, -17.060569, 0)), False)
sketch3.addGeometry(Part.LineSegment(V(16.198479, -17.060569, 0), V(16.198479, -16.07628, 0)), False)
sketch3.addGeometry(Part.BSplineCurve([V(16.198479, -16.07628, 0), V(16.220243, -16.032611, 0), V(16.263349, -15.94612, 0), V(16.349603, -15.858776, 0), V(16.430874, -15.807997, 0), V(16.497608, -15.777819, 0), V(16.571663, -15.760763, 0), V(16.62305, -15.75802, 0), V(16.649556, -15.756606, 0)], [4, 1, 1, 1, 1, 1, 4], [0, 1.490115111, 2.951323312, 3.685756095, 4.423534266, 5.18683178, 6], False, 3, [1, 1, 1, 1, 1, 1, 1, 1, 1], False), False)
sketch3.addGeometry(Part.BSplineCurve([V(16.649556, -15.756606, 0), V(16.675184, -15.757998, 0), V(16.724408, -15.760673, 0), V(16.794694, -15.777608, 0), V(16.856232, -15.807836, 0), V(16.910955, -15.845859, 0), V(16.956319, -15.893067, 0), V(16.98825, -15.948606, 0), V(17.009241, -16.009709, 0), V(17.012508, -16.052807, 0), V(17.01419, -16.075, 0)], [4, 1, 1, 1, 1, 1, 1, 1, 4], [0, 1.141910499, 2.19330111, 3.193492141, 4.178566064, 5.149873055, 6.081757497, 7.012195714, 8], False, 3, [1, 1, 1, 1, 1, 1, 1, 1, 1, 1, 1], False), False)
sketch3.addGeometry(Part.LineSegment(V(17.01419, -16.075, 0), V(17.014843, -17.000197, 0)), False)
sketch3.addGeometry(Part.LineSegment(V(17.014843, -17.000197, 0), V(18.762275, -17.000197, 0)), False)
sketch3.addGeometry(Part.LineSegment(V(18.762275, -17.000197, 0), V(17.420497, -12.934618, 0)), False)
sketch3.addGeometry(Part.BSplineCurve([V(17.420497, -12.934618, 0), V(17.413372, -12.906179, 0), V(17.399887, -12.852349, 0), V(17.405337, -12.770766, 0), V(17.425629, -12.694679, 0), V(17.468094, -12.627749, 0), V(17.523176, -12.569431, 0), V(17.593876, -12.529158, 0), V(17.674462, -12.500762, 0), V(17.732617, -12.496803, 0), V(17.763275, -12.494715, 0)], [4, 1, 1, 1, 1, 1, 1, 1, 4], [0, 1.068201145, 2.02185239, 2.962018924, 3.925457041, 4.895767801, 5.873036201, 6.878690438, 8], False, 3, [1, 1, 1, 1, 1, 1, 1, 1, 1, 1, 1], False), False)
sketch3.addGeometry(Part.BSplineCurve([V(17.763275, -12.494715, 0), V(17.805264, -12.49889, 0), V(17.88416, -12.506734, 0), V(17.988677, -12.555085, 0), V(18.071957, -12.628094, 0), V(18.101924, -12.693558, 0), V(18.11734, -12.727236, 0)], [4, 1, 1, 1, 4], [0, 1.117670421, 2.100109731, 3.022625569, 4], False, 3, [1, 1, 1, 1, 1, 1, 1], False), False)
sketch3.addGeometry(Part.LineSegment(V(18.11734, -12.727236, 0), V(19.594386, -17.199025, 0)), False)
sketch3.addGeometry(Part.BSplineCurve([V(19.594386, -17.199025, 0), V(19.601072, -17.218353, 0), V(19.614237, -17.256405, 0), V(19.621289, -17.296044, 0), V(19.624759, -17.315549, 0)], [4, 1, 4], [0, 1.015881122, 2], False, 3, [1, 1, 1, 1, 1], False), False)
sketch3.addGeometry(Part.BSplineCurve([V(19.624759, -17.315549, 0), V(19.623166, -17.344311, 0), V(19.620104, -17.399583, 0), V(19.598824, -17.477483, 0), V(19.563995, -17.544959, 0), V(19.517271, -17.601051, 0), V(19.461042, -17.644948, 0), V(19.397458, -17.677365, 0), V(19.326544, -17.69787, 0), V(19.27656, -17.70015, 0), V(19.250877, -17.701321, 0)], [4, 1, 1, 1, 1, 1, 1, 1, 4], [0, 1.145314441, 2.200972469, 3.189774196, 4.149024459, 5.086197647, 6.012134926, 6.978579067, 8], False, 3, [1, 1, 1, 1, 1, 1, 1, 1, 1, 1, 1], False), False)
sketch3.addGeometry(Part.LineSegment(V(19.250877, -17.701321, 0), V(16.974396, -17.694145, 0)), False)
sketch3.addConstraint(Sketcher.Constraint("Block", 1))
sketch3.addConstraint(Sketcher.Constraint("Block", 2))
sketch3.addConstraint(Sketcher.Constraint("Block", 4))
sketch3.addConstraint(Sketcher.Constraint("Block", 5))
sketch3.addConstraint(Sketcher.Constraint("Block", 7))
sketch3.addConstraint(Sketcher.Constraint("Block", 8))
sketch3.addConstraint(Sketcher.Constraint("Block", 10))
sketch3.addConstraint(Sketcher.Constraint("Block", 11))
sketch3.addConstraint(Sketcher.Constraint("Block", 12))
sketch3.addConstraint(Sketcher.Constraint("Block", 15))
sketch3.addConstraint(Sketcher.Constraint("Block", 16))
sketch3.addConstraint(Sketcher.Constraint("Block", 18))
sketch3.addConstraint(Sketcher.Constraint("Block", 19))
sketch3.addConstraint(Sketcher.Constraint("Block", 21))
sketch3.addConstraint(Sketcher.Constraint("Block", 22))
sketch3.addConstraint(Sketcher.Constraint("Block", 24))
sketch3.addConstraint(Sketcher.Constraint("Block", 25))
sketch3.addConstraint(Sketcher.Constraint("Block", 28))
sketch3.addConstraint(Sketcher.Constraint("Block", 29))
sketch3.addConstraint(Sketcher.Constraint("Block", 32))
sketch3.addConstraint(Sketcher.Constraint("Block", 33))
sketch3.addConstraint(Sketcher.Constraint("Block", 36))
sketch3.addConstraint(Sketcher.Constraint("Block", 37))
sketch3.addConstraint(Sketcher.Constraint("Block", 41))
sketch3.addConstraint(Sketcher.Constraint("Block", 42))
sketch3.addConstraint(Sketcher.Constraint("Block", 44))
sketch3.addConstraint(Sketcher.Constraint("Block", 45))
sketch3.addConstraint(Sketcher.Constraint("Coincident", 0, 2, 1, 1))
sketch3.addConstraint(Sketcher.Constraint("Coincident", 2, 2, 3, 1))
sketch3.addConstraint(Sketcher.Constraint("Coincident", 3, 2, 4, 1))
sketch3.addConstraint(Sketcher.Constraint("Coincident", 5, 2, 6, 1))
sketch3.addConstraint(Sketcher.Constraint("Coincident", 6, 2, 7, 1))
sketch3.addConstraint(Sketcher.Constraint("Coincident", 8, 2, 9, 1))
sketch3.addConstraint(Sketcher.Constraint("Coincident", 9, 2, 0, 1))
sketch3.addConstraint(Sketcher.Constraint("Coincident", 12, 2, 13, 1))
sketch3.addConstraint(Sketcher.Constraint("Coincident", 13, 2, 14, 1))
sketch3.addConstraint(Sketcher.Constraint("Coincident", 14, 2, 15, 1))
sketch3.addConstraint(Sketcher.Constraint("Coincident", 16, 2, 17, 1))
sketch3.addConstraint(Sketcher.Constraint("Coincident", 17, 2, 18, 1))
sketch3.addConstraint(Sketcher.Constraint("Coincident", 19, 2, 20, 1))
sketch3.addConstraint(Sketcher.Constraint("Coincident", 20, 2, 10, 1))
sketch3.addConstraint(Sketcher.Constraint("Coincident", 22, 2, 23, 1))
sketch3.addConstraint(Sketcher.Constraint("Coincident", 23, 2, 24, 1))
sketch3.addConstraint(Sketcher.Constraint("Coincident", 25, 2, 26, 1))
sketch3.addConstraint(Sketcher.Constraint("Coincident", 26, 2, 21, 1))
sketch3.addConstraint(Sketcher.Constraint("Coincident", 27, 2, 28, 1))
sketch3.addConstraint(Sketcher.Constraint("Coincident", 29, 2, 30, 1))
sketch3.addConstraint(Sketcher.Constraint("Coincident", 30, 2, 31, 1))
sketch3.addConstraint(Sketcher.Constraint("Coincident", 31, 2, 32, 1))
sketch3.addConstraint(Sketcher.Constraint("Coincident", 33, 2, 34, 1))
sketch3.addConstraint(Sketcher.Constraint("Coincident", 34, 2, 35, 1))
sketch3.addConstraint(Sketcher.Constraint("Coincident", 35, 2, 36, 1))
sketch3.addConstraint(Sketcher.Constraint("Coincident", 37, 2, 38, 1))
sketch3.addConstraint(Sketcher.Constraint("Coincident", 38, 2, 39, 1))
sketch3.addConstraint(Sketcher.Constraint("Coincident", 39, 2, 40, 1))
sketch3.addConstraint(Sketcher.Constraint("Coincident", 40, 2, 41, 1))
sketch3.addConstraint(Sketcher.Constraint("Coincident", 42, 2, 43, 1))
sketch3.addConstraint(Sketcher.Constraint("Coincident", 43, 2, 44, 1))
sketch3.addConstraint(Sketcher.Constraint("Coincident", 45, 2, 46, 1))
sketch3.addConstraint(Sketcher.Constraint("Coincident", 46, 2, 27, 1))
sketch3.addConstraint(Sketcher.Constraint("Vertical", 14))
sketch3.addConstraint(Sketcher.Constraint("Vertical", 27))
sketch3.addConstraint(Sketcher.Constraint("Horizontal", 31))
sketch3.addConstraint(Sketcher.Constraint("Vertical", 35))
sketch3.addConstraint(Sketcher.Constraint("Horizontal", 39))
sketch3.addConstraint(Sketcher.Constraint("DistanceX", 31, 2, 31, 1, 0.7489))
sketch3.addConstraint(Sketcher.Constraint("DistanceY", 27, 2, 27, 1, 0.977108))
sketch3.addConstraint(Sketcher.Constraint("DistanceY", 35, 1, 35, 2, 0.984289))
sketch3.addConstraint(Sketcher.Constraint("DistanceX", -1, 1, 9, 2, 29.378298))
sketch3.addConstraint(Sketcher.Constraint("DistanceY", 9, 2, 17, 2, 4.8229))
sketch3.addConstraint(Sketcher.Constraint("DistanceY", 26, 2, 13, 2, 5.0923))
sketch3.addConstraint(Sketcher.Constraint("DistanceX", 30, 2, 38, 2, 0.738498))
sketch3.addConstraint(Sketcher.Constraint("DistanceX", 39, 1, 39, 2, 1.747432))
sketch3.addConstraint(Sketcher.Constraint("DistanceY", 38, 2, 40, 2, 4.065578))
pocket2 = doc.addObject("PartDesign::Pocket", "Pocket001")
body.addObject(pocket2)
pocket2.Profile = sketch3
pocket2.Length = 0.25
pocket2.Reversed = True

doc.recompute()
